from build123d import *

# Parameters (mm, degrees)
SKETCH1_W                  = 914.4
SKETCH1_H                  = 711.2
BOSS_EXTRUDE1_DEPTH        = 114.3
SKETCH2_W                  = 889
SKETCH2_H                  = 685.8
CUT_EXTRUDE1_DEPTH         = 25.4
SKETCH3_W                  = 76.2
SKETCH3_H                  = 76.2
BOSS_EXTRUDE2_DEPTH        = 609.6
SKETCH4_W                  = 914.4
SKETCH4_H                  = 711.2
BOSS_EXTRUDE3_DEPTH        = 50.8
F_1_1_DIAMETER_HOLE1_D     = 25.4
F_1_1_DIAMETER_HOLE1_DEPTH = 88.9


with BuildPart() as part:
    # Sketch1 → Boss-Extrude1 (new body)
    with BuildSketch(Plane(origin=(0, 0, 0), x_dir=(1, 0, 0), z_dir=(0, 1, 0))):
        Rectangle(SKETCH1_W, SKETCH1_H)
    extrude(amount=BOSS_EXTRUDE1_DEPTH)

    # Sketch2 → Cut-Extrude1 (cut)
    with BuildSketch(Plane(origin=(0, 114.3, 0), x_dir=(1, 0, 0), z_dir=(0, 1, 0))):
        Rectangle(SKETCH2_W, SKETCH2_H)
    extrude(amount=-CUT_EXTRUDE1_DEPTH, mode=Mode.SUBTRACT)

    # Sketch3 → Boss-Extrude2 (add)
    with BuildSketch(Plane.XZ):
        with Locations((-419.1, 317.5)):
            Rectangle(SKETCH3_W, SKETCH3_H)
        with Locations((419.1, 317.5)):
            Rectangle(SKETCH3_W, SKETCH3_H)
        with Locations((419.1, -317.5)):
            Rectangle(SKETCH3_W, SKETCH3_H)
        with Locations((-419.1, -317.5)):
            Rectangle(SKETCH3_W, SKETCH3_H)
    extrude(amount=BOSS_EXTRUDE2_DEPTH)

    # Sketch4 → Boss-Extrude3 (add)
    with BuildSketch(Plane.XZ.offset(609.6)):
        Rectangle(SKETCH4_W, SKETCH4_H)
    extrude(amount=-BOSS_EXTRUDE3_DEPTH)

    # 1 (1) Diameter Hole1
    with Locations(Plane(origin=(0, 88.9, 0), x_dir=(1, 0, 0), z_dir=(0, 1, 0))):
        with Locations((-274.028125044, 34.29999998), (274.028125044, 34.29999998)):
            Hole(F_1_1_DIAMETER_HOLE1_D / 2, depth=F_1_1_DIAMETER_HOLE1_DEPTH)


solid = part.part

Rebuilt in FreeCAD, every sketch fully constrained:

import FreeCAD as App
import Part
import Sketcher
from FreeCAD import Vector
Q = App.Units.Quantity

doc = App.newDocument("Part")
body = doc.addObject("PartDesign::Body", "Body")

# Sketch on XZ plane
sketch1 = body.newObject("Sketcher::SketchObject", "Sketch")
sketch1.AttachmentSupport = (doc.getObject("XZ_Plane"), [""])
sketch1.MapMode = "FlatFace"
sketch1.addGeometry([
    Part.LineSegment(Vector(-457.2, -355.6, 0), Vector(-457.2, 355.6, 0)),
    Part.LineSegment(Vector(-457.2, 355.6, 0), Vector(457.2, 355.6, 0)),
    Part.LineSegment(Vector(457.2, 355.6, 0), Vector(457.2, -355.6, 0)),
    Part.LineSegment(Vector(457.2, -355.6, 0), Vector(-457.2, -355.6, 0)),
], False)
sketch1.addConstraint([
    Sketcher.Constraint("Coincident", 0, 2, 1, 1),
    Sketcher.Constraint("Coincident", 1, 2, 2, 1),
    Sketcher.Constraint("Coincident", 2, 2, 3, 1),
    Sketcher.Constraint("Coincident", 3, 2, 0, 1),
    Sketcher.Constraint("Vertical", 0),
    Sketcher.Constraint("Horizontal", 1),
    Sketcher.Constraint("Vertical", 2),
    Sketcher.Constraint("Horizontal", 3),
    Sketcher.Constraint("Symmetric", 0, 2, 2, 2, -1, 1),
    Sketcher.Constraint("DistanceX", 1, 1, 1, 2, Q("36 in")),
    Sketcher.Constraint("DistanceY", 0, 1, 0, 2, Q("28 in")),
])
pad1 = body.newObject("PartDesign::Pad", "Pad")
pad1.Profile = sketch1
pad1.Length = Q("4.5 in")
pad1.Reversed = True

# Sketch on XZ plane
sketch2 = body.newObject("Sketcher::SketchObject", "Sketch001")
sketch2.AttachmentSupport = (doc.getObject("XZ_Plane"), [""])
sketch2.MapMode = "FlatFace"
sketch2.AttachmentOffset = App.Placement(Vector(0, 0, -4.5 * 25.4), App.Rotation())
sketch2.addGeometry([
    Part.LineSegment(Vector(-444.5, -342.9, 0), Vector(-444.5, 342.9, 0)),
    Part.LineSegment(Vector(-444.5, 342.9, 0), Vector(444.5, 342.9, 0)),
    Part.LineSegment(Vector(444.5, 342.9, 0), Vector(444.5, -342.9, 0)),
    Part.LineSegment(Vector(444.5, -342.9, 0), Vector(-444.5, -342.9, 0)),
], False)
sketch2.addConstraint([
    Sketcher.Constraint("Coincident", 0, 2, 1, 1),
    Sketcher.Constraint("Coincident", 1, 2, 2, 1),
    Sketcher.Constraint("Coincident", 2, 2, 3, 1),
    Sketcher.Constraint("Coincident", 3, 2, 0, 1),
    Sketcher.Constraint("Vertical", 0),
    Sketcher.Constraint("Horizontal", 1),
    Sketcher.Constraint("Vertical", 2),
    Sketcher.Constraint("Horizontal", 3),
    Sketcher.Constraint("Symmetric", 0, 2, 2, 2, -1, 1),
    Sketcher.Constraint("DistanceX", 1, 1, 1, 2, Q("35 in")),
    Sketcher.Constraint("DistanceY", 0, 1, 0, 2, Q("27 in")),
])
pocket1 = body.newObject("PartDesign::Pocket", "Pocket")
pocket1.Profile = sketch2
pocket1.Length = Q("1 in")
pocket1.Reversed = True

# Sketch on XZ plane
sketch3 = body.newObject("Sketcher::SketchObject", "Sketch002")
sketch3.AttachmentSupport = (doc.getObject("XZ_Plane"), [""])
sketch3.MapMode = "FlatFace"
sketch3.addGeometry([
    Part.LineSegment(Vector(-457.2, 355.6, 0), Vector(-457.2, 279.4, 0)),  # 0
    Part.LineSegment(Vector(-457.2, 279.4, 0), Vector(-381, 279.4, 0)),  # 1
    Part.LineSegment(Vector(-381, 279.4, 0), Vector(-381, 355.6, 0)),  # 2
    Part.LineSegment(Vector(-381, 355.6, 0), Vector(-457.2, 355.6, 0)),  # 3
    Part.LineSegment(Vector(381, 355.6, 0), Vector(381, 279.4, 0)),  # 4
    Part.LineSegment(Vector(381, 279.4, 0), Vector(457.2, 279.4, 0)),  # 5
    Part.LineSegment(Vector(457.2, 279.4, 0), Vector(457.2, 355.6, 0)),  # 6
    Part.LineSegment(Vector(457.2, 355.6, 0), Vector(381, 355.6, 0)),  # 7
    Part.LineSegment(Vector(381, -279.4, 0), Vector(381, -355.6, 0)),  # 8
    Part.LineSegment(Vector(381, -355.6, 0), Vector(457.2, -355.6, 0)),  # 9
    Part.LineSegment(Vector(457.2, -355.6, 0), Vector(457.2, -279.4, 0)),  # 10
    Part.LineSegment(Vector(457.2, -279.4, 0), Vector(381, -279.4, 0)),  # 11
    Part.LineSegment(Vector(-457.2, -279.4, 0), Vector(-457.2, -355.6, 0)),  # 12
    Part.LineSegment(Vector(-457.2, -355.6, 0), Vector(-381, -355.6, 0)),  # 13
    Part.LineSegment(Vector(-381, -355.6, 0), Vector(-381, -279.4, 0)),  # 14
    Part.LineSegment(Vector(-381, -279.4, 0), Vector(-457.2, -279.4, 0)),  # 15
], False)
sketch3.addConstraint([
    Sketcher.Constraint("Coincident", 0, 2, 1, 1),
    Sketcher.Constraint("Coincident", 1, 2, 2, 1),
    Sketcher.Constraint("Coincident", 2, 2, 3, 1),
    Sketcher.Constraint("Coincident", 3, 2, 0, 1),
    Sketcher.Constraint("Coincident", 4, 2, 5, 1),
    Sketcher.Constraint("Coincident", 5, 2, 6, 1),
    Sketcher.Constraint("Coincident", 6, 2, 7, 1),
    Sketcher.Constraint("Coincident", 7, 2, 4, 1),
    Sketcher.Constraint("Coincident", 8, 2, 9, 1),
    Sketcher.Constraint("Coincident", 9, 2, 10, 1),
    Sketcher.Constraint("Coincident", 10, 2, 11, 1),
    Sketcher.Constraint("Coincident", 11, 2, 8, 1),
    Sketcher.Constraint("Coincident", 12, 2, 13, 1),
    Sketcher.Constraint("Coincident", 13, 2, 14, 1),
    Sketcher.Constraint("Coincident", 14, 2, 15, 1),
    Sketcher.Constraint("Coincident", 15, 2, 12, 1),
    Sketcher.Constraint("Vertical", 0),
    Sketcher.Constraint("Horizontal", 1),
    Sketcher.Constraint("Vertical", 2),
    Sketcher.Constraint("Horizontal", 3),
    Sketcher.Constraint("Vertical", 4),
    Sketcher.Constraint("Horizontal", 5),
    Sketcher.Constraint("Vertical", 6),
    Sketcher.Constraint("Horizontal", 7),
    Sketcher.Constraint("Vertical", 8),
    Sketcher.Constraint("Horizontal", 9),
    Sketcher.Constraint("Vertical", 10),
    Sketcher.Constraint("Horizontal", 11),
    Sketcher.Constraint("Vertical", 12),
    Sketcher.Constraint("Horizontal", 13),
    Sketcher.Constraint("Vertical", 14),
    Sketcher.Constraint("Horizontal", 15),
    Sketcher.Constraint("Symmetric", 2, 2, 8, 2, -1, 1),
    Sketcher.Constraint("Symmetric", 0, 2, 10, 2, -1, 1),
    Sketcher.Constraint("Symmetric", 6, 2, 12, 2, -1, 1),
    Sketcher.Constraint("Symmetric", 4, 2, 14, 2, -1, 1),
    Sketcher.Constraint("Symmetric", 1, 2, 4, 2, -2),
    Sketcher.Constraint("Symmetric", 3, 2, 6, 2, -2),
    Sketcher.Constraint("Equal", 15, 0),
    Sketcher.Constraint("DistanceX", 1, 1, 1, 2, Q("3 in")),
    Sketcher.Constraint("DistanceX", 0, 2, -1, 1, Q("18 in")),
    Sketcher.Constraint("DistanceY", -1, 1, 0, 2, Q("11 in")),
])
pad2 = body.newObject("PartDesign::Pad", "Pad001")
pad2.Profile = sketch3
pad2.Length = Q("24 in")

# Sketch on XZ plane
sketch4 = body.newObject("Sketcher::SketchObject", "Sketch003")
sketch4.AttachmentSupport = (doc.getObject("XZ_Plane"), [""])
sketch4.MapMode = "FlatFace"
sketch4.AttachmentOffset = App.Placement(Vector(0, 0, 24 * 25.4), App.Rotation())
sketch4.addGeometry([
    Part.LineSegment(Vector(-457.2, 355.6, 0), Vector(-457.2, -355.6, 0)),
    Part.LineSegment(Vector(-457.2, -355.6, 0), Vector(457.2, -355.6, 0)),
    Part.LineSegment(Vector(457.2, -355.6, 0), Vector(457.2, 355.6, 0)),
    Part.LineSegment(Vector(457.2, 355.6, 0), Vector(-457.2, 355.6, 0)),
], False)
sketch4.addConstraint([
    Sketcher.Constraint("Coincident", 0, 2, 1, 1),
    Sketcher.Constraint("Coincident", 1, 2, 2, 1),
    Sketcher.Constraint("Coincident", 2, 2, 3, 1),
    Sketcher.Constraint("Coincident", 3, 2, 0, 1),
    Sketcher.Constraint("Vertical", 0),
    Sketcher.Constraint("Horizontal", 1),
    Sketcher.Constraint("Vertical", 2),
    Sketcher.Constraint("Horizontal", 3),
    Sketcher.Constraint("Symmetric", 0, 2, 2, 2, -1, 1),
    Sketcher.Constraint("DistanceX", 1, 1, 1, 2, Q("36 in")),
    Sketcher.Constraint("DistanceY", 0, 2, 0, 1, Q("28 in")),
])
pad3 = body.newObject("PartDesign::Pad", "Pad002")
pad3.Profile = sketch4
pad3.Length = Q("2 in")
pad3.Reversed = True

# Sketch on XZ plane
sketch5 = body.newObject("Sketcher::SketchObject", "Sketch004")
sketch5.AttachmentSupport = (doc.getObject("XZ_Plane"), [""])
sketch5.MapMode = "FlatFace"
sketch5.AttachmentOffset = App.Placement(Vector(0, 0, -3.5 * 25.4), App.Rotation())
sketch5.addGeometry([
    Part.Circle(Vector(-274.028125, -34.3, 0), Vector(0, 0, 1), 12.7),
    Part.Circle(Vector(274.028125, -34.3, 0), Vector(0, 0, 1), 12.7),
], False)
sketch5.addConstraint([
    Sketcher.Constraint("Equal", 0, 1),
    Sketcher.Constraint("Symmetric", 0, 3, 1, 3, -2),
    Sketcher.Constraint("Diameter", 0, Q("1 in")),
    Sketcher.Constraint("DistanceY", 0, 3, -1, 1, Q("34.3 mm")),
    Sketcher.Constraint("DistanceX", 0, 3, 1, 3, Q("548.05625 mm")),
])
doc.recompute()
hole = body.newObject("PartDesign::Hole", "Hole")
hole.Profile = sketch5
hole.ThreadType = "None"
hole.Diameter = Q("1 in")
hole.DepthType = "Dimension"
hole.Depth = Q("3.5 in")
hole.DrillPoint = "Flat"
hole.Reversed = True

doc.recompute()
